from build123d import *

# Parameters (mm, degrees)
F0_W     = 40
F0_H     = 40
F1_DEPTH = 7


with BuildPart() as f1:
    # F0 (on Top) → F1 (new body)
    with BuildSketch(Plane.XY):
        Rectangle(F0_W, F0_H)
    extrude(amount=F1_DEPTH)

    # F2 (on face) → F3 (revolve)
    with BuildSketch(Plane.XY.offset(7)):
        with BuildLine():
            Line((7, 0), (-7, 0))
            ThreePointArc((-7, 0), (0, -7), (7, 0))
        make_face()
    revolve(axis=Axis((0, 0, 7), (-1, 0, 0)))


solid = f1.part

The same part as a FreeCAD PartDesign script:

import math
import FreeCAD as App
import Part
import Sketcher
Q = App.Units.Quantity

doc = App.newDocument("Part")
params = doc.addObject("Spreadsheet::Sheet", "Params")
for row, (alias, value) in enumerate([
    ("sketch1_width", "40 mm"),
    ("pad1_length", "7 mm"),
    ("sketch2_radius", "7 mm"),
    ("revolution_angle", "360 deg"),
], start=1):
    params.set(f"A{row}", alias)
    params.set(f"B{row}", "=" + value)
    params.setAlias(f"B{row}", alias)

body = doc.addObject("PartDesign::Body", "Body")

# Sketch on XY plane
sketch1 = doc.addObject("Sketcher::SketchObject", "Sketch")
body.addObject(sketch1)
sketch1.AttachmentSupport = (doc.XY_Plane, [""])
sketch1.MapMode = "FlatFace"
sketch1.addGeometry(Part.LineSegment(App.Vector(-20, 20, 0), App.Vector(-20, -20, 0)), False)
sketch1.addGeometry(Part.LineSegment(App.Vector(-20, -20, 0), App.Vector(20, -20, 0)), False)
sketch1.addGeometry(Part.LineSegment(App.Vector(20, -20, 0), App.Vector(20, 20, 0)), False)
sketch1.addGeometry(Part.LineSegment(App.Vector(20, 20, 0), App.Vector(-20, 20, 0)), False)
sketch1.addConstraint(Sketcher.Constraint("Coincident", 0, 2, 1, 1))
sketch1.addConstraint(Sketcher.Constraint("Coincident", 1, 2, 2, 1))
sketch1.addConstraint(Sketcher.Constraint("Coincident", 2, 2, 3, 1))
sketch1.addConstraint(Sketcher.Constraint("Coincident", 3, 2, 0, 1))
sketch1.addConstraint(Sketcher.Constraint("Vertical", 0))
sketch1.addConstraint(Sketcher.Constraint("Horizontal", 1))
sketch1.addConstraint(Sketcher.Constraint("Vertical", 2))
sketch1.addConstraint(Sketcher.Constraint("Horizontal", 3))
sketch1.addConstraint(Sketcher.Constraint("Symmetric", 0, 2, 2, 2, -1, 1))
sketch1.addConstraint(Sketcher.Constraint("Equal", 3, 0))
sketch1.addConstraint(Sketcher.Constraint("DistanceX", 1, 1, 1, 2, Q("40 mm")))
sketch1.setExpression("Constraints[10]", "Params.sketch1_width")
pad1 = doc.addObject("PartDesign::Pad", "Pad")
body.addObject(pad1)
pad1.Profile = sketch1
pad1.setExpression("Length", "Params.pad1_length")

# Sketch on XY plane
sketch2 = doc.addObject("Sketcher::SketchObject", "Sketch001")
body.addObject(sketch2)
sketch2.AttachmentSupport = (doc.XY_Plane, [""])
sketch2.MapMode = "FlatFace"
sketch2.AttachmentOffset = App.Placement(App.Vector(0, 0, 7), App.Rotation())
sketch2.addGeometry(Part.LineSegment(App.Vector(7, 0, 0), App.Vector(-7, 0, 0)), False)
sketch2.addGeometry(Part.ArcOfCircle(Part.Circle(App.Vector(0, 0, 0), App.Vector(0, 0, 1), 7), math.radians(180), math.radians(360)), False)
sketch2.addConstraint(Sketcher.Constraint("Coincident", 0, 1, 1, 2))
sketch2.addConstraint(Sketcher.Constraint("Coincident", 1, 1, 0, 2))
sketch2.addConstraint(Sketcher.Constraint("Horizontal", 0))
sketch2.addConstraint(Sketcher.Constraint("Coincident", 1, 3, -1, 1))
sketch2.addConstraint(Sketcher.Constraint("PointOnObject", 0, 1, -1))
sketch2.addConstraint(Sketcher.Constraint("Radius", 1, Q("7 mm")))
sketch2.setExpression("Constraints[5]", "Params.sketch2_radius")
revolution = doc.addObject("PartDesign::Revolution", "Revolution")
body.addObject(revolution)
revolution.Profile = sketch2
revolution.ReferenceAxis = (sketch2, ["H_Axis"])
revolution.setExpression("Angle", "Params.revolution_angle")

doc.recompute()
